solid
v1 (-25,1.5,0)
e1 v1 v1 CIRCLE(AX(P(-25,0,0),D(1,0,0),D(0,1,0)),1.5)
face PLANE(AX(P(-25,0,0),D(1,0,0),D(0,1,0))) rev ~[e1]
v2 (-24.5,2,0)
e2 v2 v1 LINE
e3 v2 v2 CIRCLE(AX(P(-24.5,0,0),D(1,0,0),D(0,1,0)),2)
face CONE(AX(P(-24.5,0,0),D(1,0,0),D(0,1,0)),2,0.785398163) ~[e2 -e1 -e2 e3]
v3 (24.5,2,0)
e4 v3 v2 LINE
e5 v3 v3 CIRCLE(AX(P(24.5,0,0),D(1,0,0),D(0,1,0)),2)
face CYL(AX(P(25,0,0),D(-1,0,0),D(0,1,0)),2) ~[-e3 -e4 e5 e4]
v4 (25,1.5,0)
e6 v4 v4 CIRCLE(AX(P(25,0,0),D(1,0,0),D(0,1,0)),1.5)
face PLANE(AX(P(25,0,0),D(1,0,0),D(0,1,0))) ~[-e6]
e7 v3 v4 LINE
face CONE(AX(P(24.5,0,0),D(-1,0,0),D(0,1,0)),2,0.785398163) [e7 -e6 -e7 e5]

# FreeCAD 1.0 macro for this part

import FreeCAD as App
import Part
import Sketcher


def edges_at(feature, points):
    """Names of the edges that pass closest to the given points."""
    edges = feature.Shape.Edges
    near = lambda p: min(range(len(edges)), key=lambda i: edges[i].distToShape(Part.Vertex(*p))[0])
    return sorted({f"Edge{near(p) + 1}" for p in points})

doc = App.newDocument("Part")
body = doc.addObject("PartDesign::Body", "Body")

sketch1 = body.newObject("Sketcher::SketchObject", "Sketch")
sketch1.AttachmentSupport = (doc.getObject("XY_Plane"), [""])
sketch1.MapMode = "FlatFace"
sketch1.addGeometry(Part.LineSegment(App.Vector(-25, 2, 0), App.Vector(-25, 0, 0)), False)
sketch1.addGeometry(Part.LineSegment(App.Vector(-25, 0, 0), App.Vector(25, 0, 0)), False)
sketch1.addGeometry(Part.LineSegment(App.Vector(25, 0, 0), App.Vector(25, 2, 0)), False)
sketch1.addGeometry(Part.LineSegment(App.Vector(25, 2, 0), App.Vector(-25, 2, 0)), False)
sketch1.addConstraint(Sketcher.Constraint("Coincident", 0, 2, 1, 1))
sketch1.addConstraint(Sketcher.Constraint("Coincident", 1, 2, 2, 1))
sketch1.addConstraint(Sketcher.Constraint("Coincident", 2, 2, 3, 1))
sketch1.addConstraint(Sketcher.Constraint("Coincident", 3, 2, 0, 1))
sketch1.addConstraint(Sketcher.Constraint("Vertical", 0))
sketch1.addConstraint(Sketcher.Constraint("Horizontal", 1))
sketch1.addConstraint(Sketcher.Constraint("Vertical", 2))
sketch1.addConstraint(Sketcher.Constraint("Horizontal", 3))
sketch1.addConstraint(Sketcher.Constraint("Symmetric", 0, 2, 1, 2, -1, 1))
sketch1.addConstraint(Sketcher.Constraint("DistanceX", 1, 1, 1, 2, 50.0))
sketch1.addConstraint(Sketcher.Constraint("DistanceY", 0, 2, 0, 1, 2.0))
revolution = body.newObject("PartDesign::Revolution", "Revolution")
revolution.Profile = sketch1
revolution.ReferenceAxis = (sketch1, ["H_Axis"])
revolution.Angle = 360
doc.recompute()

chamfer = body.newObject("PartDesign::Chamfer", "Chamfer")
chamfer.Base = (revolution, edges_at(revolution, [(25, -2, 0)]))
chamfer.Size = 0.5
doc.recompute()

chamfer2 = body.newObject("PartDesign::Chamfer", "Chamfer001")
chamfer2.Base = (chamfer, edges_at(chamfer, [(-25, -2, 0)]))
chamfer2.Size = 0.5

doc.recompute()
